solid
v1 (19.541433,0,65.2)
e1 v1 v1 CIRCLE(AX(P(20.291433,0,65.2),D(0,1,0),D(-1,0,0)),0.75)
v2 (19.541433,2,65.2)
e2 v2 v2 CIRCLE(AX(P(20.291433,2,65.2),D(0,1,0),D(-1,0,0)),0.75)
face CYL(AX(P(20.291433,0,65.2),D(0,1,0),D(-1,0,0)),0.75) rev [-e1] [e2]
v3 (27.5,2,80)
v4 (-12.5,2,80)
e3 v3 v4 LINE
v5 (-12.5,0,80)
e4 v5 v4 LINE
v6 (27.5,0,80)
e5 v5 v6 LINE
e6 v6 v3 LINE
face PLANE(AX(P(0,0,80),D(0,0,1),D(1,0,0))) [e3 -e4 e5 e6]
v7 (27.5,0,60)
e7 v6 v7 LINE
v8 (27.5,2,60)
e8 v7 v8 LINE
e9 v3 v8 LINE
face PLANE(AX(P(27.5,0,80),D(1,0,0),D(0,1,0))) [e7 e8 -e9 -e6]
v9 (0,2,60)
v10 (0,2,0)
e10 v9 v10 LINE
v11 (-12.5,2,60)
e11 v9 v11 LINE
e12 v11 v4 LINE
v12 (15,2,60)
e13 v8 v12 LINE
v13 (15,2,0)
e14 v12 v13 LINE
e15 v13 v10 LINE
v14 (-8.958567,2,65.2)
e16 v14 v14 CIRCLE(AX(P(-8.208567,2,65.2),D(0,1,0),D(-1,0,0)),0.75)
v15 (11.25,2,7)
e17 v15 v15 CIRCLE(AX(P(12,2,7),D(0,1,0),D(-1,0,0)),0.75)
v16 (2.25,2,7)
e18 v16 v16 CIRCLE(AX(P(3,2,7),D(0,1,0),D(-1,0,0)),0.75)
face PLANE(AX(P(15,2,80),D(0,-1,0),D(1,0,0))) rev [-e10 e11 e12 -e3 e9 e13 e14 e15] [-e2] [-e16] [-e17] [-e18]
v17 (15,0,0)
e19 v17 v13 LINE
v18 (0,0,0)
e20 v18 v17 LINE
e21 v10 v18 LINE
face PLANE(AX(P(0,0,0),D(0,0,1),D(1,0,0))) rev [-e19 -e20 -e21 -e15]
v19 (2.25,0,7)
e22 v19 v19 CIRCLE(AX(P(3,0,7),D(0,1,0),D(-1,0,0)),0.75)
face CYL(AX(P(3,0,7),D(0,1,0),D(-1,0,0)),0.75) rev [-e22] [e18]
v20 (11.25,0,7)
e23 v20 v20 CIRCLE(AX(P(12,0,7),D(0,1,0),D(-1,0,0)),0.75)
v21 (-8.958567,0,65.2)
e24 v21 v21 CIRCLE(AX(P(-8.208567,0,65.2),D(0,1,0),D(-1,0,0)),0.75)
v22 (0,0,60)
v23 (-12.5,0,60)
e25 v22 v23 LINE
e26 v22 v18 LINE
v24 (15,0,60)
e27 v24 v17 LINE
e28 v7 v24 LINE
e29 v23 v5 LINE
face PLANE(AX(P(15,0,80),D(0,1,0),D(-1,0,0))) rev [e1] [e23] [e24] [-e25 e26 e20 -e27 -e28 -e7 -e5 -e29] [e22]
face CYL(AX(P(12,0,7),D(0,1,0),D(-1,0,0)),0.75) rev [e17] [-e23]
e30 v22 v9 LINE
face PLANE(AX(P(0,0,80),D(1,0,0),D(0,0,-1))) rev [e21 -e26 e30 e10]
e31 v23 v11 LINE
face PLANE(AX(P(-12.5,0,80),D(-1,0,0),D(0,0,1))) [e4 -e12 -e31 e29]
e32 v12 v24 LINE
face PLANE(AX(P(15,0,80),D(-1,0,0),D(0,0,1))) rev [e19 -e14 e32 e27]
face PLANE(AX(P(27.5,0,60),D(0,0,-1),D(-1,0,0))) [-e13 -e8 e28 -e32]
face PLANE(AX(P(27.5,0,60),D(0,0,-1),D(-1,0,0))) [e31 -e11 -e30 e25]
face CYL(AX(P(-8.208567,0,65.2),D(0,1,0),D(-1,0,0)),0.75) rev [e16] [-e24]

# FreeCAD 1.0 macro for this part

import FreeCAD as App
import Part
import Sketcher
from FreeCAD import Vector
Q = App.Units.Quantity


def add_polygon(sketch, points):
    """Adds a closed chain of lines whose ends are joined by coincident constraints."""
    first, n = sketch.GeometryCount, len(points)
    for a, b in zip(points, points[1:] + points[:1]):
        sketch.addGeometry(Part.LineSegment(App.Vector(*a, 0), App.Vector(*b, 0)), False)
    for i in range(n):
        sketch.addConstraint(Sketcher.Constraint("Coincident", first + i, 2, first + (i + 1) % n, 1))

doc = App.newDocument("Part")
body = doc.addObject("PartDesign::Body", "Body")

# Sketch on XY plane
sketch1 = body.newObject("Sketcher::SketchObject", "Sketch")
sketch1.AttachmentSupport = (doc.getObject("XY_Plane"), [""])
sketch1.MapMode = "FlatFace"
add_polygon(sketch1, [(0, 2), (0, 0), (15, 0), (15, 2)])  # lines 0-3
sketch1.addConstraint(Sketcher.Constraint("Vertical", 0))
sketch1.addConstraint(Sketcher.Constraint("Horizontal", 1))
sketch1.addConstraint(Sketcher.Constraint("Vertical", 2))
sketch1.addConstraint(Sketcher.Constraint("Horizontal", 3))
sketch1.addConstraint(Sketcher.Constraint("Coincident", 0, 2, -1, 1))
sketch1.addConstraint(Sketcher.Constraint("DistanceX", 1, 1, 1, 2, Q("15 mm")))
sketch1.addConstraint(Sketcher.Constraint("DistanceY", 0, 2, 0, 1, Q("2 mm")))
pad1 = body.newObject("PartDesign::Pad", "Pad")
pad1.Profile = sketch1
pad1.Length = 80

# Sketch on XZ plane
sketch2 = body.newObject("Sketcher::SketchObject", "Sketch001")
sketch2.AttachmentSupport = (doc.getObject("XZ_Plane"), [""])
sketch2.MapMode = "FlatFace"
sketch2.AttachmentOffset = App.Placement(Vector(0, 0, -2), App.Rotation())
add_polygon(sketch2, [(-12, 60), (-12, 80), (28, 80), (28, 60)])  # lines 0-3
sketch2.addConstraint(Sketcher.Constraint("Vertical", 0))
sketch2.addConstraint(Sketcher.Constraint("Horizontal", 1))
sketch2.addConstraint(Sketcher.Constraint("Vertical", 2))
sketch2.addConstraint(Sketcher.Constraint("Horizontal", 3))
sketch2.addConstraint(Sketcher.Constraint("DistanceX", 1, 1, 1, 2, Q("40 mm")))
sketch2.addConstraint(Sketcher.Constraint("DistanceY", 0, 1, 0, 2, Q("20 mm")))
sketch2.addConstraint(Sketcher.Constraint("DistanceY", -1, 1, 0, 2, Q("80 mm")))
sketch2.addConstraint(Sketcher.Constraint("DistanceX", 0, 2, -1, 1, Q("12.5 mm")))
pad2 = body.newObject("PartDesign::Pad", "Pad001")
pad2.Profile = sketch2
pad2.Length = 2

# Sketch on XZ plane
sketch3 = body.newObject("Sketcher::SketchObject", "Sketch002")
sketch3.AttachmentSupport = (doc.getObject("XZ_Plane"), [""])
sketch3.MapMode = "FlatFace"
sketch3.AttachmentOffset = App.Placement(Vector(0, 0, -2), App.Rotation())
sketch3.addGeometry(Part.Circle(Vector(20.3, 65.2, 0), Vector(0, 0, 1), 0.8), False)
sketch3.addGeometry(Part.Circle(Vector(-8.2, 65.2, 0), Vector(0, 0, 1), 0.8), False)
sketch3.addGeometry(Part.Circle(Vector(12, 7, 0), Vector(0, 0, 1), 0.8), False)
sketch3.addGeometry(Part.Circle(Vector(3, 7, 0), Vector(0, 0, 1), 0.8), False)
sketch3.addConstraint(Sketcher.Constraint("Equal", 0, 1))
sketch3.addConstraint(Sketcher.Constraint("Equal", 1, 2))
sketch3.addConstraint(Sketcher.Constraint("Equal", 2, 3))
sketch3.addConstraint(Sketcher.Constraint("Horizontal", 0, 3, 1, 3))
sketch3.addConstraint(Sketcher.Constraint("Horizontal", 2, 3, 3, 3))
sketch3.addConstraint(Sketcher.Constraint("Diameter", 0, Q("1.5 mm")))
sketch3.addConstraint(Sketcher.Constraint("DistanceX", -1, 1, 2, 3, Q("12 mm")))
sketch3.addConstraint(Sketcher.Constraint("DistanceY", -1, 1, 2, 3, Q("7 mm")))
sketch3.addConstraint(Sketcher.Constraint("DistanceX", -1, 1, 3, 3, Q("3 mm")))
sketch3.addConstraint(Sketcher.Constraint("DistanceY", -1, 1, 0, 3, Q("65.2 mm")))
sketch3.addConstraint(Sketcher.Constraint("DistanceX", 1, 3, 0, 3, Q("28.5 mm")))
sketch3.addConstraint(Sketcher.Constraint("DistanceX", -1, 1, 0, 3, Q("20.291433 mm")))
pocket1 = body.newObject("PartDesign::Pocket", "Pocket")
pocket1.Profile = sketch3
pocket1.Type = "ThroughAll"
pocket1.Reversed = True

doc.recompute()
